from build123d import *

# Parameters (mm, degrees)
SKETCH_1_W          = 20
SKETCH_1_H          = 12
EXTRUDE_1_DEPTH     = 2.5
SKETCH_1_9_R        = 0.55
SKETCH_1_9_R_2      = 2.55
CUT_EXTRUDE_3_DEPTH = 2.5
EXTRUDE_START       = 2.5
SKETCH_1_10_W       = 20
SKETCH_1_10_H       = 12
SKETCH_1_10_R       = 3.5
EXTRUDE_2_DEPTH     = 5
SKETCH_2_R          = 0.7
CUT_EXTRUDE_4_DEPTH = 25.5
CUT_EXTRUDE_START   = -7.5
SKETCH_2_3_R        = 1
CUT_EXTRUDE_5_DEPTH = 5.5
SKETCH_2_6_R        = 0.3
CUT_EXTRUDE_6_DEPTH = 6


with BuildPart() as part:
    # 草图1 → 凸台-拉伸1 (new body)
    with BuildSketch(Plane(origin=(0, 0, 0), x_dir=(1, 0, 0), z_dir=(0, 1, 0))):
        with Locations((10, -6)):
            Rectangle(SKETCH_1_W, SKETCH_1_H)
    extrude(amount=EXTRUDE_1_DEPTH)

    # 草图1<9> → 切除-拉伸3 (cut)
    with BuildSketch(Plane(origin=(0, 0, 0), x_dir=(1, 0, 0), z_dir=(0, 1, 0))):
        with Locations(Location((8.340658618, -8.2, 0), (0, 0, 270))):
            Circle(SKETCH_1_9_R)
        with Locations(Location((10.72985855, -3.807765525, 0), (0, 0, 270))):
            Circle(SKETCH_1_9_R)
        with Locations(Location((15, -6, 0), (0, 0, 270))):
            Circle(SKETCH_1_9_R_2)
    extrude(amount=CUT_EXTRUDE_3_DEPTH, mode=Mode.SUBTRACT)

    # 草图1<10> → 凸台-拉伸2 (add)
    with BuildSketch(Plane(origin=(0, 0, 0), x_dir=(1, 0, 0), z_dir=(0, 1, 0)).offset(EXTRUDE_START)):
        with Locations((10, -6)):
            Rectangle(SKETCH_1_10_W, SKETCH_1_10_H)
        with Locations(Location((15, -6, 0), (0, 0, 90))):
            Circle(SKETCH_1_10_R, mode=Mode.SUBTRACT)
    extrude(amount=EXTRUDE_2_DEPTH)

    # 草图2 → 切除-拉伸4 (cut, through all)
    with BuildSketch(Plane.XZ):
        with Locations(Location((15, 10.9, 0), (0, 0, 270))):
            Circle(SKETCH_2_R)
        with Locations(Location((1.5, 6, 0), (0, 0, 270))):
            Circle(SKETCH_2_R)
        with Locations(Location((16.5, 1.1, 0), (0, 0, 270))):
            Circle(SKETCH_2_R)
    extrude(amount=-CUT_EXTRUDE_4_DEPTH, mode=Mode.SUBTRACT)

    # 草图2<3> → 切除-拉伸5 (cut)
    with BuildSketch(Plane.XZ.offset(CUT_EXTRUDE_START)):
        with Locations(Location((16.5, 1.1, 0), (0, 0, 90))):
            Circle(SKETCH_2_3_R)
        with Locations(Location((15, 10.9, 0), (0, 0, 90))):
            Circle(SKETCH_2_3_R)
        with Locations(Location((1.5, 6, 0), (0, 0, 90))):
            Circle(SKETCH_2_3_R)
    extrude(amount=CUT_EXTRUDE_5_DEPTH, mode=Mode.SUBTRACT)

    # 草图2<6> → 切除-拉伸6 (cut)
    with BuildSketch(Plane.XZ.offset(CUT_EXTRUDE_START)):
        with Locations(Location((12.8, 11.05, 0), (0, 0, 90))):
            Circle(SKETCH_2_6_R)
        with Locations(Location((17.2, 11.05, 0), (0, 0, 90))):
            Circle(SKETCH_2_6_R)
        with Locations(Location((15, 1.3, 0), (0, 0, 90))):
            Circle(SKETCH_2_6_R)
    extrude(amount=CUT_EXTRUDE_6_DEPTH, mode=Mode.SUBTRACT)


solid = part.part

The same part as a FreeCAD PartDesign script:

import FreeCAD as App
import Part
import Sketcher
from FreeCAD import Vector


def add_polygon(sketch, points):
    """Adds a closed chain of lines whose ends are joined by coincident constraints."""
    first, n = sketch.GeometryCount, len(points)
    for a, b in zip(points, points[1:] + points[:1]):
        sketch.addGeometry(Part.LineSegment(App.Vector(*a, 0), App.Vector(*b, 0)), False)
    for i in range(n):
        sketch.addConstraint(Sketcher.Constraint("Coincident", first + i, 2, first + (i + 1) % n, 1))

doc = App.newDocument("Part")
body = doc.addObject("PartDesign::Body", "Body")

# Sketch on XZ plane
sketch1 = body.newObject("Sketcher::SketchObject", "Sketch")
sketch1.AttachmentSupport = (doc.getObject("XZ_Plane"), [""])
sketch1.MapMode = "FlatFace"
add_polygon(sketch1, [(0, 0), (0, 12), (20, 12), (20, 0)])  # lines 0-3
sketch1.addConstraint([
    Sketcher.Constraint("Vertical", 0),
    Sketcher.Constraint("Horizontal", 1),
    Sketcher.Constraint("Vertical", 2),
    Sketcher.Constraint("Horizontal", 3),
    Sketcher.Constraint("Coincident", 3, 2, -1, 1),
    Sketcher.Constraint("DistanceX", 1, 1, 1, 2, 20.0),
    Sketcher.Constraint("DistanceY", 0, 1, 0, 2, 12.0),
])
pad1 = body.newObject("PartDesign::Pad", "Pad")
pad1.Profile = sketch1
pad1.Length = 2.5
pad1.Reversed = True

# Sketch on XZ plane
sketch2 = body.newObject("Sketcher::SketchObject", "Sketch001")
sketch2.AttachmentSupport = (doc.getObject("XZ_Plane"), [""])
sketch2.MapMode = "FlatFace"
sketch2.addGeometry([
    Part.Circle(Vector(8.3, 8.2, 0), Vector(0, 0, 1), 0.6),
    Part.Circle(Vector(10.7, 3.8, 0), Vector(0, 0, 1), 0.6),
    Part.Circle(Vector(15, 6, 0), Vector(0, 0, 1), 2.5),
], False)
sketch2.addConstraint([
    Sketcher.Constraint("Equal", 0, 1),
    Sketcher.Constraint("Diameter", 0, 1.1),
    Sketcher.Constraint("Diameter", 2, 5.1),
    Sketcher.Constraint("DistanceX", -1, 1, 2, 3, 15.0),
    Sketcher.Constraint("DistanceY", -1, 1, 2, 3, 6.0),
    Sketcher.Constraint("DistanceY", -1, 1, 0, 3, 8.2),
    Sketcher.Constraint("DistanceX", 0, 3, 1, 3, 2.3892),
    Sketcher.Constraint("DistanceX", -1, 1, 0, 3, 8.340659),
    Sketcher.Constraint("DistanceY", -1, 1, 1, 3, 3.807766),
])
pocket1 = body.newObject("PartDesign::Pocket", "Pocket")
pocket1.Profile = sketch2
pocket1.Length = 2.5

# Sketch on XZ plane
sketch3 = body.newObject("Sketcher::SketchObject", "Sketch002")
sketch3.AttachmentSupport = (doc.getObject("XZ_Plane"), [""])
sketch3.MapMode = "FlatFace"
sketch3.AttachmentOffset = App.Placement(Vector(0, 0, -2.5), App.Rotation())
add_polygon(sketch3, [(0, 0), (0, 12), (20, 12), (20, 0)])  # lines 0-3
sketch3.addGeometry(Part.Circle(Vector(15, 6, 0), Vector(0, 0, 1), 3.5), False)  # 4
sketch3.addConstraint([
    Sketcher.Constraint("Vertical", 0),
    Sketcher.Constraint("Horizontal", 1),
    Sketcher.Constraint("Vertical", 2),
    Sketcher.Constraint("Horizontal", 3),
    Sketcher.Constraint("Coincident", 3, 2, -1, 1),
    Sketcher.Constraint("Diameter", 4, 7.0),
    Sketcher.Constraint("DistanceX", 1, 1, 1, 2, 20.0),
    Sketcher.Constraint("DistanceY", 0, 1, 0, 2, 12.0),
    Sketcher.Constraint("DistanceX", -1, 1, 4, 3, 15.0),
    Sketcher.Constraint("DistanceY", -1, 1, 4, 3, 6.0),
])
pad2 = body.newObject("PartDesign::Pad", "Pad001")
pad2.Profile = sketch3
pad2.Length = 5
pad2.Reversed = True

# Sketch on XZ plane
sketch4 = body.newObject("Sketcher::SketchObject", "Sketch003")
sketch4.AttachmentSupport = (doc.getObject("XZ_Plane"), [""])
sketch4.MapMode = "FlatFace"
sketch4.addGeometry([
    Part.Circle(Vector(15, 10.9, 0), Vector(0, 0, 1), 0.7),
    Part.Circle(Vector(1.5, 6, 0), Vector(0, 0, 1), 0.7),
    Part.Circle(Vector(16.5, 1.1, 0), Vector(0, 0, 1), 0.7),
], False)
sketch4.addConstraint([
    Sketcher.Constraint("Equal", 0, 1),
    Sketcher.Constraint("Equal", 1, 2),
    Sketcher.Constraint("Diameter", 0, 1.4),
    Sketcher.Constraint("DistanceX", -1, 1, 0, 3, 15.0),
    Sketcher.Constraint("DistanceY", -1, 1, 1, 3, 6.0),
    Sketcher.Constraint("DistanceX", 1, 3, 2, 3, 15.0),
    Sketcher.Constraint("DistanceY", -1, 1, 0, 3, 10.9),
    Sketcher.Constraint("DistanceX", -1, 1, 1, 3, 1.5),
    Sketcher.Constraint("DistanceY", -1, 1, 2, 3, 1.1),
])
pocket2 = body.newObject("PartDesign::Pocket", "Pocket001")
pocket2.Profile = sketch4
pocket2.Type = "ThroughAll"

# Sketch on XZ plane
sketch5 = body.newObject("Sketcher::SketchObject", "Sketch004")
sketch5.AttachmentSupport = (doc.getObject("XZ_Plane"), [""])
sketch5.MapMode = "FlatFace"
sketch5.AttachmentOffset = App.Placement(Vector(0, 0, -7.5), App.Rotation())
sketch5.addGeometry([
    Part.Circle(Vector(16.5, 1.1, 0), Vector(0, 0, 1), 1),
    Part.Circle(Vector(15, 10.9, 0), Vector(0, 0, 1), 1),
    Part.Circle(Vector(1.5, 6, 0), Vector(0, 0, 1), 1),
], False)
sketch5.addConstraint([
    Sketcher.Constraint("Equal", 0, 1),
    Sketcher.Constraint("Equal", 1, 2),
    Sketcher.Constraint("Diameter", 0, 2.0),
    Sketcher.Constraint("DistanceX", -1, 1, 1, 3, 15.0),
    Sketcher.Constraint("DistanceY", -1, 1, 2, 3, 6.0),
    Sketcher.Constraint("DistanceX", 2, 3, 0, 3, 15.0),
    Sketcher.Constraint("DistanceX", -1, 1, 0, 3, 16.5),
    Sketcher.Constraint("DistanceY", -1, 1, 0, 3, 1.1),
    Sketcher.Constraint("DistanceY", -1, 1, 1, 3, 10.9),
])
pocket3 = body.newObject("PartDesign::Pocket", "Pocket002")
pocket3.Profile = sketch5
pocket3.Length = 5.5
pocket3.Reversed = True

# Sketch on XZ plane
sketch6 = body.newObject("Sketcher::SketchObject", "Sketch005")
sketch6.AttachmentSupport = (doc.getObject("XZ_Plane"), [""])
sketch6.MapMode = "FlatFace"
sketch6.AttachmentOffset = App.Placement(Vector(0, 0, -7.5), App.Rotation())
sketch6.addGeometry([
    Part.Circle(Vector(12.8, 11.05, 0), Vector(0, 0, 1), 0.3),
    Part.Circle(Vector(17.2, 11.05, 0), Vector(0, 0, 1), 0.3),
    Part.Circle(Vector(15, 1.3, 0), Vector(0, 0, 1), 0.3),
], False)
sketch6.addConstraint([
    Sketcher.Constraint("Equal", 0, 1),
    Sketcher.Constraint("Equal", 1, 2),
    Sketcher.Constraint("Horizontal", 0, 3, 1, 3),
    Sketcher.Constraint("Diameter", 0, 0.6),
    Sketcher.Constraint("DistanceX", -1, 1, 2, 3, 15.0),
    Sketcher.Constraint("DistanceX", -1, 1, 0, 3, 12.8),
    Sketcher.Constraint("DistanceX", -1, 1, 1, 3, 17.2),
    Sketcher.Constraint("DistanceY", -1, 1, 2, 3, 1.3),
    Sketcher.Constraint("DistanceY", -1, 1, 0, 3, 11.05),
])
pocket4 = body.newObject("PartDesign::Pocket", "Pocket003")
pocket4.Profile = sketch6
pocket4.Length = 6
pocket4.Reversed = True

doc.recompute()
